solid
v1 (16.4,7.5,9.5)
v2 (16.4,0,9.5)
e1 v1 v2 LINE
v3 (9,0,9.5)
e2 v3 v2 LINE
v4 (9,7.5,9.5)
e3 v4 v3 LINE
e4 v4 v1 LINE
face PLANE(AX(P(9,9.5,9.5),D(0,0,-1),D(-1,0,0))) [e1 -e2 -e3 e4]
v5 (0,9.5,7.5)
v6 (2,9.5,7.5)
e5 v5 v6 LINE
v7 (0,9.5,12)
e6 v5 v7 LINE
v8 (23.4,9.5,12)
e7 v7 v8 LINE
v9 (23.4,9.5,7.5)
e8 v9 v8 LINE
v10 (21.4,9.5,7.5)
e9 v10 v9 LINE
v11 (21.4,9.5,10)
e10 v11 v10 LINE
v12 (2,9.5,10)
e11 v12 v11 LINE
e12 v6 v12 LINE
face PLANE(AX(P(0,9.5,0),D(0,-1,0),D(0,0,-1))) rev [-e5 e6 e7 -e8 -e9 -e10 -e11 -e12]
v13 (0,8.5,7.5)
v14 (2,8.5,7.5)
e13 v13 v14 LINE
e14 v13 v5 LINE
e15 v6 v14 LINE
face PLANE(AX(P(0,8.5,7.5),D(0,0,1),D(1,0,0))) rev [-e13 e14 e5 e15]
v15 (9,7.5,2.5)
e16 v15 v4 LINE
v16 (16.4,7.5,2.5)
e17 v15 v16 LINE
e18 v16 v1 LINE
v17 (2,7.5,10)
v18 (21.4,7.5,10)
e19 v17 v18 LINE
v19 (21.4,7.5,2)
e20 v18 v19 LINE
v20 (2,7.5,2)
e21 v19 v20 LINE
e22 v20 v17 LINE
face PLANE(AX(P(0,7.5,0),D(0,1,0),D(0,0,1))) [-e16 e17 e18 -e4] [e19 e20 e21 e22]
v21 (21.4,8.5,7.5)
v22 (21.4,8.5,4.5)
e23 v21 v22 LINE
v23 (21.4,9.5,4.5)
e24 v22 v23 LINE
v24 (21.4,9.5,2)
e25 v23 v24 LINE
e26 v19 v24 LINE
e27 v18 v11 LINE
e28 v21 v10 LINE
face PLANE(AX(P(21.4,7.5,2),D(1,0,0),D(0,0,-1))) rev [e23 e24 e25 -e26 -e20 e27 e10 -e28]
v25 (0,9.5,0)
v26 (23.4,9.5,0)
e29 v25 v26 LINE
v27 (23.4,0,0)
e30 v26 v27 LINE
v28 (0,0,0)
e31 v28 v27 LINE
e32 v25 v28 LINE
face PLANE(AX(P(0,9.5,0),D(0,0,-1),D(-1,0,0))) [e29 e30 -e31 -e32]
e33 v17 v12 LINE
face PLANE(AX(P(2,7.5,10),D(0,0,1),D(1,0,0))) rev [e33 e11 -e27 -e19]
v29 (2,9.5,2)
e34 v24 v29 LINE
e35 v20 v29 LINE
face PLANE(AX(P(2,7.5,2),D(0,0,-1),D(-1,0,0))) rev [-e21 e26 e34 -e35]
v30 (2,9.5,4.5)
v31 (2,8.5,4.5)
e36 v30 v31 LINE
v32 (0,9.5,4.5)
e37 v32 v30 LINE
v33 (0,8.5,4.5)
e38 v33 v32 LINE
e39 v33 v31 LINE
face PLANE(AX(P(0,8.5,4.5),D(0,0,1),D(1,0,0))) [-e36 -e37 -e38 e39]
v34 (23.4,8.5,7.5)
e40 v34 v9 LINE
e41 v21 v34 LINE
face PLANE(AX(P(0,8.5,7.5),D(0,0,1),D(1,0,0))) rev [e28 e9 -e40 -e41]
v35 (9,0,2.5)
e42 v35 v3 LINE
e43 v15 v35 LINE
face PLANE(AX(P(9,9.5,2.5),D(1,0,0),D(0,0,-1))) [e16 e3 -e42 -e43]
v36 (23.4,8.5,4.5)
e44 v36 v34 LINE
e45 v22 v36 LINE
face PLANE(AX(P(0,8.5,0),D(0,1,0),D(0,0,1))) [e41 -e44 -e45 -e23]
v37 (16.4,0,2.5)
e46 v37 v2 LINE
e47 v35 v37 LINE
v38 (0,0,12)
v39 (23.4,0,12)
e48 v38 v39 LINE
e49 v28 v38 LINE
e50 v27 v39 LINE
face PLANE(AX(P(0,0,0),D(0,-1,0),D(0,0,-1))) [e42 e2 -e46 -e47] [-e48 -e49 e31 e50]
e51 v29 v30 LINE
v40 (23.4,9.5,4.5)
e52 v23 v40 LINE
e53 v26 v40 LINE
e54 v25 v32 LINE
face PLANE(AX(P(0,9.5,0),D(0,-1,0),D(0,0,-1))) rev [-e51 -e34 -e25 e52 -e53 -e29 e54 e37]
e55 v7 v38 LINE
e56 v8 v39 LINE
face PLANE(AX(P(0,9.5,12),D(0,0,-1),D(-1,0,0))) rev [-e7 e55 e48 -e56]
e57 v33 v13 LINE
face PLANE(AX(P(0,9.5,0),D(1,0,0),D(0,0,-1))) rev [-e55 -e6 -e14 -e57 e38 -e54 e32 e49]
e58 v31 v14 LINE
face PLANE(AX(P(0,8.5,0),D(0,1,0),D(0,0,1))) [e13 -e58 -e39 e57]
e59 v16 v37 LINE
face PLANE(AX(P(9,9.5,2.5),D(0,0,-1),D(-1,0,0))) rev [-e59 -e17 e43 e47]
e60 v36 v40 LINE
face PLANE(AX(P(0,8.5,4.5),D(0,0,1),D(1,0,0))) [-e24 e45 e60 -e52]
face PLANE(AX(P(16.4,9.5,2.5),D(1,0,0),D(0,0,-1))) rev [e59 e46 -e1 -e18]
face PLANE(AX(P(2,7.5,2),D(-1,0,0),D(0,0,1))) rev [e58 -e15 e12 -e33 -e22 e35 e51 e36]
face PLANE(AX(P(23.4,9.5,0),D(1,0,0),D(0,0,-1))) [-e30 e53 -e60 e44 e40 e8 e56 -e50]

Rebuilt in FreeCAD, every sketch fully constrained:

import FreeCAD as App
import Part
import Sketcher

V = App.Vector

doc = App.newDocument("Part")
body = doc.addObject("PartDesign::Body", "Body")

# Sketch on XZ plane
sketch1 = body.newObject("Sketcher::SketchObject", "Sketch")
sketch1.AttachmentSupport = (doc.getObject("XZ_Plane"), [""])
sketch1.MapMode = "FlatFace"
sketch1.addGeometry([
    Part.LineSegment(V(0, 0, 0), V(0, 12, 0)),  # 0
    Part.LineSegment(V(0, 12, 0), V(23.4, 12, 0)),  # 1
    Part.LineSegment(V(23.4, 12, 0), V(23.4, 0, 0)),  # 2
    Part.LineSegment(V(23.4, 0, 0), V(0, 0, 0)),  # 3
    Part.LineSegment(V(16.4, 9.5, 0), V(9, 9.5, 0)),  # 4
    Part.LineSegment(V(9, 9.5, 0), V(9, 2.5, 0)),  # 5
    Part.LineSegment(V(9, 2.5, 0), V(16.4, 2.5, 0)),  # 6
    Part.LineSegment(V(16.4, 2.5, 0), V(16.4, 9.5, 0)),  # 7
], False)
sketch1.addConstraint([
    Sketcher.Constraint("Coincident", 0, 2, 1, 1),
    Sketcher.Constraint("Coincident", 1, 2, 2, 1),
    Sketcher.Constraint("Coincident", 2, 2, 3, 1),
    Sketcher.Constraint("Coincident", 3, 2, 0, 1),
    Sketcher.Constraint("Coincident", 4, 2, 5, 1),
    Sketcher.Constraint("Coincident", 5, 2, 6, 1),
    Sketcher.Constraint("Coincident", 6, 2, 7, 1),
    Sketcher.Constraint("Coincident", 7, 2, 4, 1),
    Sketcher.Constraint("Vertical", 0),
    Sketcher.Constraint("Horizontal", 1),
    Sketcher.Constraint("Vertical", 2),
    Sketcher.Constraint("Horizontal", 3),
    Sketcher.Constraint("Horizontal", 4),
    Sketcher.Constraint("Vertical", 5),
    Sketcher.Constraint("Horizontal", 6),
    Sketcher.Constraint("Vertical", 7),
    Sketcher.Constraint("Coincident", 3, 2, -1, 1),
    Sketcher.Constraint("DistanceY", 0, 1, 0, 2, 12.0),
    Sketcher.Constraint("DistanceY", 5, 2, 5, 1, 7.0),
    Sketcher.Constraint("DistanceX", 1, 1, 1, 2, 23.4),
    Sketcher.Constraint("DistanceX", 4, 2, 4, 1, 7.4),
    Sketcher.Constraint("DistanceX", -1, 1, 4, 2, 9.0),
    Sketcher.Constraint("DistanceY", -1, 1, 4, 2, 9.5),
])
pad1 = body.newObject("PartDesign::Pad", "Pad")
pad1.Profile = sketch1
pad1.Length = 9.5
pad1.Reversed = True

# Sketch on XZ plane
sketch2 = body.newObject("Sketcher::SketchObject", "Sketch001")
sketch2.AttachmentSupport = (doc.getObject("XZ_Plane"), [""])
sketch2.MapMode = "FlatFace"
sketch2.AttachmentOffset = App.Placement(V(0, 0, -9.5), App.Rotation())
sketch2.addGeometry([
    Part.LineSegment(V(0, 4.5, 0), V(0, 7.5, 0)),
    Part.LineSegment(V(0, 7.5, 0), V(23.4, 7.5, 0)),
    Part.LineSegment(V(23.4, 7.5, 0), V(23.4, 4.5, 0)),
    Part.LineSegment(V(23.4, 4.5, 0), V(0, 4.5, 0)),
], False)
sketch2.addConstraint([
    Sketcher.Constraint("Coincident", 0, 2, 1, 1),
    Sketcher.Constraint("Coincident", 1, 2, 2, 1),
    Sketcher.Constraint("Coincident", 2, 2, 3, 1),
    Sketcher.Constraint("Coincident", 3, 2, 0, 1),
    Sketcher.Constraint("Vertical", 0),
    Sketcher.Constraint("Horizontal", 1),
    Sketcher.Constraint("Vertical", 2),
    Sketcher.Constraint("Horizontal", 3),
    Sketcher.Constraint("PointOnObject", 0, 2, -2),
    Sketcher.Constraint("DistanceY", 0, 1, 0, 2, 3.0),
    Sketcher.Constraint("DistanceX", 1, 1, 1, 2, 23.4),
    Sketcher.Constraint("DistanceY", -1, 1, 0, 2, 7.5),
])
pocket1 = body.newObject("PartDesign::Pocket", "Pocket")
pocket1.Profile = sketch2
pocket1.Length = 1
pocket1.Reversed = True

# Sketch on XZ plane
sketch3 = body.newObject("Sketcher::SketchObject", "Sketch002")
sketch3.AttachmentSupport = (doc.getObject("XZ_Plane"), [""])
sketch3.MapMode = "FlatFace"
sketch3.AttachmentOffset = App.Placement(V(0, 0, -9.5), App.Rotation())
sketch3.addGeometry([
    Part.LineSegment(V(2, 2, 0), V(2, 10, 0)),
    Part.LineSegment(V(2, 10, 0), V(21.4, 10, 0)),
    Part.LineSegment(V(21.4, 10, 0), V(21.4, 2, 0)),
    Part.LineSegment(V(21.4, 2, 0), V(2, 2, 0)),
], False)
sketch3.addConstraint([
    Sketcher.Constraint("Coincident", 0, 2, 1, 1),
    Sketcher.Constraint("Coincident", 1, 2, 2, 1),
    Sketcher.Constraint("Coincident", 2, 2, 3, 1),
    Sketcher.Constraint("Coincident", 3, 2, 0, 1),
    Sketcher.Constraint("Vertical", 0),
    Sketcher.Constraint("Horizontal", 1),
    Sketcher.Constraint("Vertical", 2),
    Sketcher.Constraint("Horizontal", 3),
    Sketcher.Constraint("DistanceY", 0, 1, 0, 2, 8.0),
    Sketcher.Constraint("DistanceX", 1, 1, 1, 2, 19.4),
    Sketcher.Constraint("DistanceX", -1, 1, 0, 2, 2.0),
    Sketcher.Constraint("DistanceY", -1, 1, 0, 2, 10.0),
])
pocket2 = body.newObject("PartDesign::Pocket", "Pocket001")
pocket2.Profile = sketch3
pocket2.Length = 2
pocket2.Reversed = True

doc.recompute()
